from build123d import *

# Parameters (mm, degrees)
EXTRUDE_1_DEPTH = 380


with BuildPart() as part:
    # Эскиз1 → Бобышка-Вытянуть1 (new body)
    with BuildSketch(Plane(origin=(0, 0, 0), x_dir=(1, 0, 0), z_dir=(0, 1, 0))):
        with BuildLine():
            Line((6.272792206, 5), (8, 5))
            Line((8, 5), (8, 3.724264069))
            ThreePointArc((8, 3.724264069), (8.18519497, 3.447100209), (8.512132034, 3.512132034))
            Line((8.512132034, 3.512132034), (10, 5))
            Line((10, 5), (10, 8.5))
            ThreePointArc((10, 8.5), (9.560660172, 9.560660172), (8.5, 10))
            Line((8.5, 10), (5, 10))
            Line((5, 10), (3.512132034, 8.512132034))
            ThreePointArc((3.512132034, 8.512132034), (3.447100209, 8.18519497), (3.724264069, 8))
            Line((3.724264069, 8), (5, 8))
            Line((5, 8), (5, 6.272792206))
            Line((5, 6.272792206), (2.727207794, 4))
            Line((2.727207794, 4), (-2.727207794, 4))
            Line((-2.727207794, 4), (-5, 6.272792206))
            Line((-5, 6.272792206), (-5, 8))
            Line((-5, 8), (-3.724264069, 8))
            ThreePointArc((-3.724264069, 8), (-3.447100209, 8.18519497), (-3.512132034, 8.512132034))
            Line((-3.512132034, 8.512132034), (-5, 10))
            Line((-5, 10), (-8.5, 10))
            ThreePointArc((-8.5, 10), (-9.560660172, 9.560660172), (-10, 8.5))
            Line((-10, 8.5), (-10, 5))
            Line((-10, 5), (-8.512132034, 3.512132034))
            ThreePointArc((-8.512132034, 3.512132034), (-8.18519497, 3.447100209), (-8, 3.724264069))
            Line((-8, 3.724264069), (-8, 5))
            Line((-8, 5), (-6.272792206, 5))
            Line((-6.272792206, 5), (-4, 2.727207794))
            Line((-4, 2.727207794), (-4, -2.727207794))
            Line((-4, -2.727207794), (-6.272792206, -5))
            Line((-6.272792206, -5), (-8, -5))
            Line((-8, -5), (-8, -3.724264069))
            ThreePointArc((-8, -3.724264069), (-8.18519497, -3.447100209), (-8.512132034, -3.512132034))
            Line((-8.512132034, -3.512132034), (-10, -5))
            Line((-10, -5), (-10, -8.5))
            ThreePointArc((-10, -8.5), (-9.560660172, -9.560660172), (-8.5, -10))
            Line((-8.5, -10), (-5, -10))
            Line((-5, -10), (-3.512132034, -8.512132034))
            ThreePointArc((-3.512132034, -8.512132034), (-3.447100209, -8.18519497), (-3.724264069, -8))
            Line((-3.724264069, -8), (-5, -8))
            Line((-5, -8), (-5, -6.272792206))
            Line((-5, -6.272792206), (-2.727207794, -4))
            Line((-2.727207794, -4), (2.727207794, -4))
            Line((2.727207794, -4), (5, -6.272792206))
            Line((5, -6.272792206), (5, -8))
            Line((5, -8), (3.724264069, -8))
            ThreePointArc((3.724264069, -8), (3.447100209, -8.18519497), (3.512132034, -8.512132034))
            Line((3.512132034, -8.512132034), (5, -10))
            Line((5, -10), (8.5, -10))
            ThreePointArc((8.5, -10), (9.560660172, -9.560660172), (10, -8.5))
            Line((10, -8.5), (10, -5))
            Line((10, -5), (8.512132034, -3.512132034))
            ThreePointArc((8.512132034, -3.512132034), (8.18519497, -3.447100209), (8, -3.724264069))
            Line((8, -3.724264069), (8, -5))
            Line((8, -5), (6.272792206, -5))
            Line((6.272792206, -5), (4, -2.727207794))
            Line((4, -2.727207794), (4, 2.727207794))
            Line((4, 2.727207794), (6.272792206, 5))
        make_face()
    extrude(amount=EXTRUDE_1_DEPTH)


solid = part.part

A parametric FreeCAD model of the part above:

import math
import FreeCAD as App
import Part
import Sketcher

V = App.Vector

doc = App.newDocument("Part")
body = doc.addObject("PartDesign::Body", "Body")

sketch1 = doc.addObject("Sketcher::SketchObject", "Sketch")
body.addObject(sketch1)
sketch1.AttachmentSupport = (doc.XZ_Plane, [""])
sketch1.MapMode = "FlatFace"
sketch1.addGeometry([
    Part.LineSegment(V(6.27, -5, 0), V(8, -5, 0)),
    Part.LineSegment(V(8, -5, 0), V(8, -3.72, 0)),
    Part.ArcOfCircle(Part.Circle(V(8.3, -3.72, 0), V(0, 0, 1), 0.3), math.radians(45), math.radians(180)),
    Part.LineSegment(V(8.51, -3.51, 0), V(10, -5, 0)),
    Part.LineSegment(V(10, -5, 0), V(10, -8.5, 0)),
    Part.ArcOfCircle(Part.Circle(V(8.5, -8.5, 0), V(0, 0, 1), 1.5), math.radians(-90), math.radians(0)),
    Part.LineSegment(V(8.5, -10, 0), V(5, -10, 0)),
    Part.LineSegment(V(5, -10, 0), V(3.51, -8.51, 0)),
    Part.ArcOfCircle(Part.Circle(V(3.72, -8.3, 0), V(0, 0, 1), 0.3), math.radians(90), math.radians(225)),
    Part.LineSegment(V(3.72, -8, 0), V(5, -8, 0)),
    Part.LineSegment(V(5, -8, 0), V(5, -6.27, 0)),
    Part.LineSegment(V(5, -6.27, 0), V(2.73, -4, 0)),
    Part.LineSegment(V(2.73, -4, 0), V(-2.73, -4, 0)),
    Part.LineSegment(V(-2.73, -4, 0), V(-5, -6.27, 0)),
    Part.LineSegment(V(-5, -6.27, 0), V(-5, -8, 0)),
    Part.LineSegment(V(-5, -8, 0), V(-3.72, -8, 0)),
    Part.ArcOfCircle(Part.Circle(V(-3.72, -8.3, 0), V(0, 0, 1), 0.3), math.radians(-45), math.radians(90)),
    Part.LineSegment(V(-3.51, -8.51, 0), V(-5, -10, 0)),
    Part.LineSegment(V(-5, -10, 0), V(-8.5, -10, 0)),
    Part.ArcOfCircle(Part.Circle(V(-8.5, -8.5, 0), V(0, 0, 1), 1.5), math.radians(180), math.radians(270)),
    Part.LineSegment(V(-10, -8.5, 0), V(-10, -5, 0)),
    Part.LineSegment(V(-10, -5, 0), V(-8.51, -3.51, 0)),
    Part.ArcOfCircle(Part.Circle(V(-8.3, -3.72, 0), V(0, 0, 1), 0.3), math.radians(0), math.radians(135)),
    Part.LineSegment(V(-8, -3.72, 0), V(-8, -5, 0)),
    Part.LineSegment(V(-8, -5, 0), V(-6.27, -5, 0)),
    Part.LineSegment(V(-6.27, -5, 0), V(-4, -2.73, 0)),
    Part.LineSegment(V(-4, -2.73, 0), V(-4, 2.73, 0)),
    Part.LineSegment(V(-4, 2.73, 0), V(-6.27, 5, 0)),
    Part.LineSegment(V(-6.27, 5, 0), V(-8, 5, 0)),
    Part.LineSegment(V(-8, 5, 0), V(-8, 3.72, 0)),
    Part.ArcOfCircle(Part.Circle(V(-8.3, 3.72, 0), V(0, 0, 1), 0.3), math.radians(-135), math.radians(0)),
    Part.LineSegment(V(-8.51, 3.51, 0), V(-10, 5, 0)),
    Part.LineSegment(V(-10, 5, 0), V(-10, 8.5, 0)),
    Part.ArcOfCircle(Part.Circle(V(-8.5, 8.5, 0), V(0, 0, 1), 1.5), math.radians(90), math.radians(180)),
    Part.LineSegment(V(-8.5, 10, 0), V(-5, 10, 0)),
    Part.LineSegment(V(-5, 10, 0), V(-3.51, 8.51, 0)),
    Part.ArcOfCircle(Part.Circle(V(-3.72, 8.3, 0), V(0, 0, 1), 0.3), math.radians(-90), math.radians(45)),
    Part.LineSegment(V(-3.72, 8, 0), V(-5, 8, 0)),
    Part.LineSegment(V(-5, 8, 0), V(-5, 6.27, 0)),
    Part.LineSegment(V(-5, 6.27, 0), V(-2.73, 4, 0)),
    Part.LineSegment(V(-2.73, 4, 0), V(2.73, 4, 0)),
    Part.LineSegment(V(2.73, 4, 0), V(5, 6.27, 0)),
    Part.LineSegment(V(5, 6.27, 0), V(5, 8, 0)),
    Part.LineSegment(V(5, 8, 0), V(3.72, 8, 0)),
    Part.ArcOfCircle(Part.Circle(V(3.72, 8.3, 0), V(0, 0, 1), 0.3), math.radians(135), math.radians(270)),
    Part.LineSegment(V(3.51, 8.51, 0), V(5, 10, 0)),
    Part.LineSegment(V(5, 10, 0), V(8.5, 10, 0)),
    Part.ArcOfCircle(Part.Circle(V(8.5, 8.5, 0), V(0, 0, 1), 1.5), math.radians(0), math.radians(90)),
    Part.LineSegment(V(10, 8.5, 0), V(10, 5, 0)),
    Part.LineSegment(V(10, 5, 0), V(8.51, 3.51, 0)),
    Part.ArcOfCircle(Part.Circle(V(8.3, 3.72, 0), V(0, 0, 1), 0.3), math.radians(180), math.radians(315)),
    Part.LineSegment(V(8, 3.72, 0), V(8, 5, 0)),
    Part.LineSegment(V(8, 5, 0), V(6.27, 5, 0)),
    Part.LineSegment(V(6.27, 5, 0), V(4, 2.73, 0)),
    Part.LineSegment(V(4, 2.73, 0), V(4, -2.73, 0)),
    Part.LineSegment(V(4, -2.73, 0), V(6.27, -5, 0)),
], False)
sketch1.addConstraint([
    Sketcher.Constraint("Coincident", 0, 2, 1, 1),
    Sketcher.Constraint("Tangent", 1, 2, 2, 2),
    Sketcher.Constraint("Tangent", 2, 1, 3, 1),
    Sketcher.Constraint("Coincident", 3, 2, 4, 1),
    Sketcher.Constraint("Tangent", 4, 2, 5, 2),
    Sketcher.Constraint("Tangent", 5, 1, 6, 1),
    Sketcher.Constraint("Coincident", 6, 2, 7, 1),
    Sketcher.Constraint("Tangent", 7, 2, 8, 2),
    Sketcher.Constraint("Tangent", 8, 1, 9, 1),
    Sketcher.Constraint("Coincident", 9, 2, 10, 1),
    Sketcher.Constraint("Coincident", 10, 2, 11, 1),
    Sketcher.Constraint("Coincident", 11, 2, 12, 1),
    Sketcher.Constraint("Coincident", 12, 2, 13, 1),
    Sketcher.Constraint("Coincident", 13, 2, 14, 1),
    Sketcher.Constraint("Coincident", 14, 2, 15, 1),
    Sketcher.Constraint("Tangent", 15, 2, 16, 2),
    Sketcher.Constraint("Tangent", 16, 1, 17, 1),
    Sketcher.Constraint("Coincident", 17, 2, 18, 1),
    Sketcher.Constraint("Tangent", 18, 2, 19, 2),
    Sketcher.Constraint("Tangent", 19, 1, 20, 1),
    Sketcher.Constraint("Coincident", 20, 2, 21, 1),
    Sketcher.Constraint("Tangent", 21, 2, 22, 2),
    Sketcher.Constraint("Tangent", 22, 1, 23, 1),
    Sketcher.Constraint("Coincident", 23, 2, 24, 1),
    Sketcher.Constraint("Coincident", 24, 2, 25, 1),
    Sketcher.Constraint("Coincident", 25, 2, 26, 1),
    Sketcher.Constraint("Coincident", 26, 2, 27, 1),
    Sketcher.Constraint("Coincident", 27, 2, 28, 1),
    Sketcher.Constraint("Coincident", 28, 2, 29, 1),
    Sketcher.Constraint("Tangent", 29, 2, 30, 2),
    Sketcher.Constraint("Tangent", 30, 1, 31, 1),
    Sketcher.Constraint("Coincident", 31, 2, 32, 1),
    Sketcher.Constraint("Tangent", 32, 2, 33, 2),
    Sketcher.Constraint("Tangent", 33, 1, 34, 1),
    Sketcher.Constraint("Coincident", 34, 2, 35, 1),
    Sketcher.Constraint("Tangent", 35, 2, 36, 2),
    Sketcher.Constraint("Tangent", 36, 1, 37, 1),
    Sketcher.Constraint("Coincident", 37, 2, 38, 1),
    Sketcher.Constraint("Coincident", 38, 2, 39, 1),
    Sketcher.Constraint("Coincident", 39, 2, 40, 1),
    Sketcher.Constraint("Coincident", 40, 2, 41, 1),
    Sketcher.Constraint("Coincident", 41, 2, 42, 1),
    Sketcher.Constraint("Coincident", 42, 2, 43, 1),
    Sketcher.Constraint("Tangent", 43, 2, 44, 2),
    Sketcher.Constraint("Tangent", 44, 1, 45, 1),
    Sketcher.Constraint("Coincident", 45, 2, 46, 1),
    Sketcher.Constraint("Tangent", 46, 2, 47, 2),
    Sketcher.Constraint("Tangent", 47, 1, 48, 1),
    Sketcher.Constraint("Coincident", 48, 2, 49, 1),
    Sketcher.Constraint("Tangent", 49, 2, 50, 2),
    Sketcher.Constraint("Tangent", 50, 1, 51, 1),
    Sketcher.Constraint("Coincident", 51, 2, 52, 1),
    Sketcher.Constraint("Coincident", 52, 2, 53, 1),
    Sketcher.Constraint("Coincident", 53, 2, 54, 1),
    Sketcher.Constraint("Coincident", 54, 2, 55, 1),
    Sketcher.Constraint("Coincident", 55, 2, 0, 1),
    Sketcher.Constraint("Horizontal", 0),
    Sketcher.Constraint("Vertical", 1),
    Sketcher.Constraint("Vertical", 4),
    Sketcher.Constraint("Horizontal", 6),
    Sketcher.Constraint("Horizontal", 9),
    Sketcher.Constraint("Vertical", 10),
    Sketcher.Constraint("Horizontal", 12),
    Sketcher.Constraint("Vertical", 14),
    Sketcher.Constraint("Horizontal", 15),
    Sketcher.Constraint("Horizontal", 18),
    Sketcher.Constraint("Vertical", 20),
    Sketcher.Constraint("Vertical", 23),
    Sketcher.Constraint("Horizontal", 24),
    Sketcher.Constraint("Vertical", 26),
    Sketcher.Constraint("Horizontal", 28),
    Sketcher.Constraint("Vertical", 29),
    Sketcher.Constraint("Vertical", 32),
    Sketcher.Constraint("Horizontal", 34),
    Sketcher.Constraint("Horizontal", 37),
    Sketcher.Constraint("Vertical", 38),
    Sketcher.Constraint("Horizontal", 40),
    Sketcher.Constraint("Vertical", 42),
    Sketcher.Constraint("Horizontal", 43),
    Sketcher.Constraint("Horizontal", 46),
    Sketcher.Constraint("Vertical", 48),
    Sketcher.Constraint("Vertical", 51),
    Sketcher.Constraint("Horizontal", 52),
    Sketcher.Constraint("Vertical", 54),
    Sketcher.Constraint("Equal", 2, 8),
    Sketcher.Constraint("Equal", 8, 16),
    Sketcher.Constraint("Equal", 5, 19),
    Sketcher.Constraint("Equal", 16, 22),
    Sketcher.Constraint("Equal", 22, 30),
    Sketcher.Constraint("Equal", 19, 33),
    Sketcher.Constraint("Equal", 30, 36),
    Sketcher.Constraint("Equal", 36, 44),
    Sketcher.Constraint("Equal", 33, 47),
    Sketcher.Constraint("Equal", 44, 50),
    Sketcher.Constraint("Symmetric", 2, 3, 30, 3, -1, 1),
    Sketcher.Constraint("Symmetric", 5, 3, 33, 3, -1, 1),
    Sketcher.Constraint("Symmetric", 8, 3, 36, 3, -1, 1),
    Sketcher.Constraint("Symmetric", 16, 3, 44, 3, -1, 1),
    Sketcher.Constraint("Symmetric", 19, 3, 47, 3, -1, 1),
    Sketcher.Constraint("Symmetric", 22, 3, 50, 3, -1, 1),
    Sketcher.Constraint("Symmetric", 10, 2, 38, 2, -1, 1),
    Sketcher.Constraint("Symmetric", 11, 2, 39, 2, -1, 1),
    Sketcher.Constraint("Symmetric", 13, 2, 41, 2, -1, 1),
    Sketcher.Constraint("Symmetric", 24, 2, 52, 2, -1, 1),
    Sketcher.Constraint("Symmetric", 25, 2, 53, 2, -1, 1),
    Sketcher.Constraint("Symmetric", 27, 2, 55, 2, -1, 1),
    Sketcher.Constraint("Symmetric", 8, 3, 16, 3, -2),
    Sketcher.Constraint("Symmetric", 5, 3, 19, 3, -2),
    Sketcher.Constraint("Symmetric", 2, 3, 22, 3, -2),
    Sketcher.Constraint("Symmetric", 10, 2, 13, 2, -2),
    Sketcher.Constraint("Symmetric", 27, 2, 52, 2, -2),
    Sketcher.Constraint("Parallel", 3, 7),
    Sketcher.Constraint("Parallel", 7, 11),
    Sketcher.Constraint("Perpendicular", 11, 13),
    Sketcher.Constraint("Parallel", 13, 17),
    Sketcher.Constraint("Parallel", 17, 21),
    Sketcher.Constraint("Parallel", 21, 25),
    Sketcher.Constraint("Perpendicular", 25, 27),
    Sketcher.Constraint("Parallel", 27, 31),
    Sketcher.Constraint("Parallel", 31, 35),
    Sketcher.Constraint("Perpendicular", 39, 41),
    Sketcher.Constraint("Parallel", 41, 45),
    Sketcher.Constraint("Parallel", 45, 49),
    Sketcher.Constraint("Perpendicular", 53, 55),
    Sketcher.Constraint("Horizontal", 0, 2, 3, 2),
    Sketcher.Constraint("Horizontal", 7, 2, 16, 1),
    Sketcher.Constraint("Vertical", 6, 2, 9, 2),
    Sketcher.Constraint("Equal", 43, 1),
    Sketcher.Constraint("Equal", 46, 4),
    Sketcher.Constraint("Equal", 52, 10),
    Sketcher.Constraint("Equal", 40, 26),
    Sketcher.Constraint("Equal", 13, 25),
    Sketcher.Constraint("Radius", 2, 0.3),
    Sketcher.Constraint("Radius", 5, 1.5),
    Sketcher.Constraint("DistanceX", 6, 2, 6, 1, 3.5),
    Sketcher.Constraint("DistanceX", -1, 1, 0, 2, 8.0),
    Sketcher.Constraint("DistanceY", 0, 2, -1, 1, 5.0),
    Sketcher.Constraint("DistanceY", 11, 2, -1, 1, 4.0),
    Sketcher.Constraint("DistanceX", 0, 1, 0, 2, 1.727208),
])
pad1 = doc.addObject("PartDesign::Pad", "Pad")
body.addObject(pad1)
pad1.Profile = sketch1
pad1.Length = 380
pad1.Reversed = True

doc.recompute()
